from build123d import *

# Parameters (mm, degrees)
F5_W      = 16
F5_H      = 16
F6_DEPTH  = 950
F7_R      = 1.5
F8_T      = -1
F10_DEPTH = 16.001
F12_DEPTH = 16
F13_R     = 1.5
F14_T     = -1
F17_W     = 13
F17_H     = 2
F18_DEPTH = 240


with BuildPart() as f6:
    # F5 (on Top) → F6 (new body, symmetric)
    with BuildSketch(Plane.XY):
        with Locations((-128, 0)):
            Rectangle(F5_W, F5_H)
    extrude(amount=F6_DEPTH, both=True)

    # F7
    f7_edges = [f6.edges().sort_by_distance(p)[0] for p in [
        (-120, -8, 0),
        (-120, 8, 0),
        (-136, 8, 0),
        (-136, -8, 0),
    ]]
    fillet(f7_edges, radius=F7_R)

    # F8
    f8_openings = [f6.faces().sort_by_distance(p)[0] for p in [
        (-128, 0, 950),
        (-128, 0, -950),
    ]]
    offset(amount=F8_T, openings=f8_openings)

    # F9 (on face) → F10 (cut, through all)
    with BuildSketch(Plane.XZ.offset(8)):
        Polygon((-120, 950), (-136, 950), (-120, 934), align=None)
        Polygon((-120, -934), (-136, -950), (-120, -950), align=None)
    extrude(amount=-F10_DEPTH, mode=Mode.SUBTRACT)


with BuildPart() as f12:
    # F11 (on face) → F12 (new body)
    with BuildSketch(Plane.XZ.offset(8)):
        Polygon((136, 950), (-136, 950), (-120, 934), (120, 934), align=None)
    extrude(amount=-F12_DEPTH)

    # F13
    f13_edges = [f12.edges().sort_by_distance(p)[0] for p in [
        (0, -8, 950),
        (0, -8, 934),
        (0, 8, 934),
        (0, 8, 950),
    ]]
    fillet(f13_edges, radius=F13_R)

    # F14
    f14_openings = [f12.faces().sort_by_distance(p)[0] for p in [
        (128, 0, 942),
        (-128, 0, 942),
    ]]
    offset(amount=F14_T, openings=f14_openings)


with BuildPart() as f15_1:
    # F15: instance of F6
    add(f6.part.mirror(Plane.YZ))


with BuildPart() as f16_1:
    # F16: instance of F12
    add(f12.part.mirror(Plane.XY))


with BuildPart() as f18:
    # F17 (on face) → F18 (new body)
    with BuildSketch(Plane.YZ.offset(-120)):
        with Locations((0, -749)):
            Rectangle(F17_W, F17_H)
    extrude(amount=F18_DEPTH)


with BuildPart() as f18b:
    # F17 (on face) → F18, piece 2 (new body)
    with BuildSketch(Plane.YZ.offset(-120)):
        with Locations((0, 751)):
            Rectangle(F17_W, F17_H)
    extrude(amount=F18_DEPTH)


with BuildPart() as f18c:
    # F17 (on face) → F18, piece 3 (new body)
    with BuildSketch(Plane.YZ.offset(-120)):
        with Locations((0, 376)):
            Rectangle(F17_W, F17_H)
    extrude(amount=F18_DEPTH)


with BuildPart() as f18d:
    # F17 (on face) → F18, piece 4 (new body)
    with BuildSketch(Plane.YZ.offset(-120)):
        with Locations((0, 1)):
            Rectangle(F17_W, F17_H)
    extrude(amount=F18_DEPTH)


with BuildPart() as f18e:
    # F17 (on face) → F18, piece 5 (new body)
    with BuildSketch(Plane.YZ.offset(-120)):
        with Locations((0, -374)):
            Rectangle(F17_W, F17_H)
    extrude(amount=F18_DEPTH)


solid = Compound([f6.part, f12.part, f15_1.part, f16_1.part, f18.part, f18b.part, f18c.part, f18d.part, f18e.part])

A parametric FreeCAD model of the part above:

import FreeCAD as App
import Part
import Sketcher
Q = App.Units.Quantity


def edges_at(feature, points):
    """Names of the edges that pass closest to the given points."""
    edges = feature.Shape.Edges
    near = lambda p: min(range(len(edges)), key=lambda i: edges[i].distToShape(Part.Vertex(*p))[0])
    return sorted({f"Edge{near(p) + 1}" for p in points})


def faces_at(feature, points):
    """Names of the faces that lie closest to the given points."""
    faces = feature.Shape.Faces
    near = lambda p: min(range(len(faces)), key=lambda i: faces[i].distToShape(Part.Vertex(*p))[0])
    return sorted({f"Face{near(p) + 1}" for p in points})


def add_polygon(sketch, points):
    """Adds a closed chain of lines whose ends are joined by coincident constraints."""
    first, n = sketch.GeometryCount, len(points)
    for a, b in zip(points, points[1:] + points[:1]):
        sketch.addGeometry(Part.LineSegment(App.Vector(*a, 0), App.Vector(*b, 0)), False)
    for i in range(n):
        sketch.addConstraint(Sketcher.Constraint("Coincident", first + i, 2, first + (i + 1) % n, 1))

doc = App.newDocument("Part")
params = doc.addObject("Spreadsheet::Sheet", "Params")
for row, (alias, value) in enumerate([
    ("sketch1_width", "16 mm"),
    ("pad1_length", "1900 mm"),
    ("fillet_radius", "1.5 mm"),
    ("thickness_wall", "1 mm"),
    ("sketch2_width", "16 mm"),
    ("sketch3_width", "272 mm"),
    ("sketch3_width2", "240 mm"),
    ("pad2_length", "16 mm"),
    ("fillet2_radius", "1.5 mm"),
    ("thickness2_wall", "1 mm"),
    ("sketch4_width", "13 mm"),
    ("sketch4_height", "2 mm"),
    ("pad3_length", "240 mm"),
    ("sketch5_width", "13 mm"),
    ("sketch5_height", "2 mm"),
    ("pad4_length", "240 mm"),
    ("sketch6_width", "13 mm"),
    ("sketch6_height", "2 mm"),
    ("pad5_length", "240 mm"),
    ("sketch7_width", "13 mm"),
    ("sketch7_height", "2 mm"),
    ("pad6_length", "240 mm"),
    ("sketch8_width", "13 mm"),
    ("sketch8_height", "2 mm"),
    ("pad7_length", "240 mm"),
], start=1):
    params.set(f"A{row}", alias)
    params.set(f"B{row}", "=" + value)
    params.setAlias(f"B{row}", alias)

body = doc.addObject("PartDesign::Body", "Body")

sketch1 = body.newObject("Sketcher::SketchObject", "Sketch")
sketch1.AttachmentSupport = (doc.getObject("XY_Plane"), [""])
sketch1.MapMode = "FlatFace"
add_polygon(sketch1, [(-136, 8), (-136, -8), (-120, -8), (-120, 8)])
sketch1.addConstraint(Sketcher.Constraint("Vertical", 0))
sketch1.addConstraint(Sketcher.Constraint("Horizontal", 1))
sketch1.addConstraint(Sketcher.Constraint("Vertical", 2))
sketch1.addConstraint(Sketcher.Constraint("Horizontal", 3))
sketch1.addConstraint(Sketcher.Constraint("Equal", 3, 0))
sketch1.addConstraint(Sketcher.Constraint("DistanceX", 1, 1, 1, 2, Q("16 mm")))
sketch1.addConstraint(Sketcher.Constraint("DistanceX", 0, 2, -1, 1, Q("136 mm")))
sketch1.addConstraint(Sketcher.Constraint("DistanceY", 0, 2, -1, 1, Q("8 mm")))
sketch1.setExpression("Constraints[9]", "Params.sketch1_width")
pad1 = body.newObject("PartDesign::Pad", "Pad")
pad1.Profile = sketch1
pad1.setExpression("Length", "Params.pad1_length")
pad1.Midplane = True
doc.recompute()

fillet = body.newObject("PartDesign::Fillet", "Fillet")
fillet.Base = (pad1, edges_at(pad1, [
    (-120, -8, 0),
    (-120, 8, 0),
    (-136, 8, 0),
    (-136, -8, 0),
]))
fillet.setExpression("Radius", "Params.fillet_radius")
doc.recompute()

thickness = body.newObject("PartDesign::Thickness", "Thickness")
thickness.Base = (fillet, faces_at(fillet, [(-128, 0, 950), (-128, 0, -950)]))
thickness.setExpression("Value", "Params.thickness_wall")
thickness.Reversed = True
thickness.Join = "Arc"

sketch2 = body.newObject("Sketcher::SketchObject", "Sketch001")
sketch2.AttachmentSupport = (doc.getObject("XZ_Plane"), [""])
sketch2.MapMode = "FlatFace"
sketch2.AttachmentOffset = App.Placement(App.Vector(0, 0, 8), App.Rotation())
add_polygon(sketch2, [(-120, 950), (-136, 950), (-120, 934)])
add_polygon(sketch2, [(-120, -934), (-136, -950), (-120, -950)])
sketch2.addConstraint(Sketcher.Constraint("Horizontal", 0))
sketch2.addConstraint(Sketcher.Constraint("Vertical", 2))
sketch2.addConstraint(Sketcher.Constraint("Horizontal", 4))
sketch2.addConstraint(Sketcher.Constraint("Vertical", 5))
sketch2.addConstraint(Sketcher.Constraint("Symmetric", 0, 2, 3, 2, -1))
sketch2.addConstraint(Sketcher.Constraint("Symmetric", 1, 2, 5, 2, -1))
sketch2.addConstraint(Sketcher.Constraint("Perpendicular", 1, 3))
sketch2.addConstraint(Sketcher.Constraint("DistanceX", 0, 2, 0, 1, Q("16 mm")))
sketch2.addConstraint(Sketcher.Constraint("DistanceX", 0, 2, -1, 1, Q("136 mm")))
sketch2.addConstraint(Sketcher.Constraint("DistanceY", -1, 1, 0, 2, Q("950 mm")))
sketch2.setExpression("Constraints[13]", "Params.sketch2_width")
pocket1 = body.newObject("PartDesign::Pocket", "Pocket")
pocket1.Profile = sketch2
pocket1.Type = "ThroughAll"
body2 = doc.addObject("PartDesign::Body", "Body001")

sketch3 = body2.newObject("Sketcher::SketchObject", "Sketch002")
sketch3.AttachmentSupport = (doc.getObject("XZ_Plane001"), [""])
sketch3.MapMode = "FlatFace"
sketch3.AttachmentOffset = App.Placement(App.Vector(0, 0, 8), App.Rotation())
add_polygon(sketch3, [(136, 950), (-136, 950), (-120, 934), (120, 934)])
sketch3.addConstraint(Sketcher.Constraint("Horizontal", 0))
sketch3.addConstraint(Sketcher.Constraint("Horizontal", 2))
sketch3.addConstraint(Sketcher.Constraint("Perpendicular", 1, 3))
sketch3.addConstraint(Sketcher.Constraint("Equal", 1, 3))
sketch3.addConstraint(Sketcher.Constraint("DistanceX", 0, 2, 0, 1, Q("272 mm")))
sketch3.addConstraint(Sketcher.Constraint("DistanceX", 2, 1, 2, 2, Q("240 mm")))
sketch3.addConstraint(Sketcher.Constraint("DistanceX", 0, 2, -1, 1, Q("136 mm")))
sketch3.addConstraint(Sketcher.Constraint("DistanceY", -1, 1, 0, 2, Q("950 mm")))
sketch3.setExpression("Constraints[8]", "Params.sketch3_width")
sketch3.setExpression("Constraints[9]", "Params.sketch3_width2")
pad2 = body2.newObject("PartDesign::Pad", "Pad001")
pad2.Profile = sketch3
pad2.setExpression("Length", "Params.pad2_length")
pad2.Reversed = True
doc.recompute()

fillet2 = body2.newObject("PartDesign::Fillet", "Fillet001")
fillet2.Base = (pad2, edges_at(pad2, [
    (0, -8, 950),
    (0, -8, 934),
    (0, 8, 934),
    (0, 8, 950),
]))
fillet2.setExpression("Radius", "Params.fillet2_radius")
doc.recompute()

thickness2 = body2.newObject("PartDesign::Thickness", "Thickness001")
thickness2.Base = (fillet2, faces_at(fillet2, [(128, 0, 942), (-128, 0, 942)]))
thickness2.setExpression("Value", "Params.thickness2_wall")
thickness2.Reversed = True
thickness2.Join = "Arc"
body3 = doc.addObject("PartDesign::Body", "Body002")
doc.recompute()

mirroring = doc.addObject("Part::Mirroring", "Mirroring")
mirroring.Source = body
mirroring.Base = App.Vector(0, 0, 0)
mirroring.Normal = App.Vector(1, 0, 0)
body3.BaseFeature = mirroring
doc.recompute()
body4 = doc.addObject("PartDesign::Body", "Body003")
doc.recompute()

mirroring2 = doc.addObject("Part::Mirroring", "Mirroring001")
mirroring2.Source = body2
mirroring2.Base = App.Vector(0, 0, 0)
mirroring2.Normal = App.Vector(0, 0, 1)
body4.BaseFeature = mirroring2
doc.recompute()
body5 = doc.addObject("PartDesign::Body", "Body004")

sketch4 = body5.newObject("Sketcher::SketchObject", "Sketch003")
sketch4.AttachmentSupport = (doc.getObject("YZ_Plane004"), [""])
sketch4.MapMode = "FlatFace"
sketch4.AttachmentOffset = App.Placement(App.Vector(0, 0, -120), App.Rotation())
add_polygon(sketch4, [(-6.5, -748), (-6.5, -750), (6.5, -750), (6.5, -748)])
sketch4.addConstraint(Sketcher.Constraint("Vertical", 0))
sketch4.addConstraint(Sketcher.Constraint("Horizontal", 1))
sketch4.addConstraint(Sketcher.Constraint("Vertical", 2))
sketch4.addConstraint(Sketcher.Constraint("Horizontal", 3))
sketch4.addConstraint(Sketcher.Constraint("DistanceX", 1, 1, 1, 2, Q("13 mm")))
sketch4.addConstraint(Sketcher.Constraint("DistanceY", 0, 2, 0, 1, Q("2 mm")))
sketch4.addConstraint(Sketcher.Constraint("DistanceY", 0, 2, -1, 1, Q("750 mm")))
sketch4.addConstraint(Sketcher.Constraint("DistanceX", 0, 2, -1, 1, Q("6.5 mm")))
sketch4.setExpression("Constraints[8]", "Params.sketch4_width")
sketch4.setExpression("Constraints[9]", "Params.sketch4_height")
pad3 = body5.newObject("PartDesign::Pad", "Pad002")
pad3.Profile = sketch4
pad3.setExpression("Length", "Params.pad3_length")
body6 = doc.addObject("PartDesign::Body", "Body005")

sketch5 = body6.newObject("Sketcher::SketchObject", "Sketch004")
sketch5.AttachmentSupport = (doc.getObject("YZ_Plane005"), [""])
sketch5.MapMode = "FlatFace"
sketch5.AttachmentOffset = App.Placement(App.Vector(0, 0, -120), App.Rotation())
add_polygon(sketch5, [(-6.5, 752), (-6.5, 750), (6.5, 750), (6.5, 752)])
sketch5.addConstraint(Sketcher.Constraint("Vertical", 0))
sketch5.addConstraint(Sketcher.Constraint("Horizontal", 1))
sketch5.addConstraint(Sketcher.Constraint("Vertical", 2))
sketch5.addConstraint(Sketcher.Constraint("Horizontal", 3))
sketch5.addConstraint(Sketcher.Constraint("DistanceX", 1, 1, 1, 2, Q("13 mm")))
sketch5.addConstraint(Sketcher.Constraint("DistanceY", 0, 2, 0, 1, Q("2 mm")))
sketch5.addConstraint(Sketcher.Constraint("DistanceY", -1, 1, 0, 2, Q("750 mm")))
sketch5.addConstraint(Sketcher.Constraint("DistanceX", 0, 2, -1, 1, Q("6.5 mm")))
sketch5.setExpression("Constraints[8]", "Params.sketch5_width")
sketch5.setExpression("Constraints[9]", "Params.sketch5_height")
pad4 = body6.newObject("PartDesign::Pad", "Pad003")
pad4.Profile = sketch5
pad4.setExpression("Length", "Params.pad4_length")
body7 = doc.addObject("PartDesign::Body", "Body006")

sketch6 = body7.newObject("Sketcher::SketchObject", "Sketch005")
sketch6.AttachmentSupport = (doc.getObject("YZ_Plane006"), [""])
sketch6.MapMode = "FlatFace"
sketch6.AttachmentOffset = App.Placement(App.Vector(0, 0, -120), App.Rotation())
add_polygon(sketch6, [(-6.5, 377), (-6.5, 375), (6.5, 375), (6.5, 377)])
sketch6.addConstraint(Sketcher.Constraint("Vertical", 0))
sketch6.addConstraint(Sketcher.Constraint("Horizontal", 1))
sketch6.addConstraint(Sketcher.Constraint("Vertical", 2))
sketch6.addConstraint(Sketcher.Constraint("Horizontal", 3))
sketch6.addConstraint(Sketcher.Constraint("DistanceX", 1, 1, 1, 2, Q("13 mm")))
sketch6.addConstraint(Sketcher.Constraint("DistanceY", 0, 2, 0, 1, Q("2 mm")))
sketch6.addConstraint(Sketcher.Constraint("DistanceY", -1, 1, 0, 2, Q("375 mm")))
sketch6.addConstraint(Sketcher.Constraint("DistanceX", 0, 2, -1, 1, Q("6.5 mm")))
sketch6.setExpression("Constraints[8]", "Params.sketch6_width")
sketch6.setExpression("Constraints[9]", "Params.sketch6_height")
pad5 = body7.newObject("PartDesign::Pad", "Pad004")
pad5.Profile = sketch6
pad5.setExpression("Length", "Params.pad5_length")
body8 = doc.addObject("PartDesign::Body", "Body007")

sketch7 = body8.newObject("Sketcher::SketchObject", "Sketch006")
sketch7.AttachmentSupport = (doc.getObject("YZ_Plane007"), [""])
sketch7.MapMode = "FlatFace"
sketch7.AttachmentOffset = App.Placement(App.Vector(0, 0, -120), App.Rotation())
add_polygon(sketch7, [(-6.5, 2), (-6.5, 0), (6.5, 0), (6.5, 2)])
sketch7.addConstraint(Sketcher.Constraint("Vertical", 0))
sketch7.addConstraint(Sketcher.Constraint("Horizontal", 1))
sketch7.addConstraint(Sketcher.Constraint("Vertical", 2))
sketch7.addConstraint(Sketcher.Constraint("Horizontal", 3))
sketch7.addConstraint(Sketcher.Constraint("Symmetric", 0, 2, 1, 2, -1, 1))
sketch7.addConstraint(Sketcher.Constraint("DistanceX", 1, 1, 1, 2, Q("13 mm")))
sketch7.addConstraint(Sketcher.Constraint("DistanceY", 0, 2, 0, 1, Q("2 mm")))
sketch7.setExpression("Constraints[9]", "Params.sketch7_width")
sketch7.setExpression("Constraints[10]", "Params.sketch7_height")
pad6 = body8.newObject("PartDesign::Pad", "Pad005")
pad6.Profile = sketch7
pad6.setExpression("Length", "Params.pad6_length")
body9 = doc.addObject("PartDesign::Body", "Body008")

sketch8 = body9.newObject("Sketcher::SketchObject", "Sketch007")
sketch8.AttachmentSupport = (doc.getObject("YZ_Plane008"), [""])
sketch8.MapMode = "FlatFace"
sketch8.AttachmentOffset = App.Placement(App.Vector(0, 0, -120), App.Rotation())
add_polygon(sketch8, [(-6.5, -373), (-6.5, -375), (6.5, -375), (6.5, -373)])
sketch8.addConstraint(Sketcher.Constraint("Vertical", 0))
sketch8.addConstraint(Sketcher.Constraint("Horizontal", 1))
sketch8.addConstraint(Sketcher.Constraint("Vertical", 2))
sketch8.addConstraint(Sketcher.Constraint("Horizontal", 3))
sketch8.addConstraint(Sketcher.Constraint("DistanceX", 1, 1, 1, 2, Q("13 mm")))
sketch8.addConstraint(Sketcher.Constraint("DistanceY", 0, 2, 0, 1, Q("2 mm")))
sketch8.addConstraint(Sketcher.Constraint("DistanceY", 0, 2, -1, 1, Q("375 mm")))
sketch8.addConstraint(Sketcher.Constraint("DistanceX", 0, 2, -1, 1, Q("6.5 mm")))
sketch8.setExpression("Constraints[8]", "Params.sketch8_width")
sketch8.setExpression("Constraints[9]", "Params.sketch8_height")
pad7 = body9.newObject("PartDesign::Pad", "Pad006")
pad7.Profile = sketch8
pad7.setExpression("Length", "Params.pad7_length")
mirroring.Visibility = False
mirroring2.Visibility = False

doc.recompute()
